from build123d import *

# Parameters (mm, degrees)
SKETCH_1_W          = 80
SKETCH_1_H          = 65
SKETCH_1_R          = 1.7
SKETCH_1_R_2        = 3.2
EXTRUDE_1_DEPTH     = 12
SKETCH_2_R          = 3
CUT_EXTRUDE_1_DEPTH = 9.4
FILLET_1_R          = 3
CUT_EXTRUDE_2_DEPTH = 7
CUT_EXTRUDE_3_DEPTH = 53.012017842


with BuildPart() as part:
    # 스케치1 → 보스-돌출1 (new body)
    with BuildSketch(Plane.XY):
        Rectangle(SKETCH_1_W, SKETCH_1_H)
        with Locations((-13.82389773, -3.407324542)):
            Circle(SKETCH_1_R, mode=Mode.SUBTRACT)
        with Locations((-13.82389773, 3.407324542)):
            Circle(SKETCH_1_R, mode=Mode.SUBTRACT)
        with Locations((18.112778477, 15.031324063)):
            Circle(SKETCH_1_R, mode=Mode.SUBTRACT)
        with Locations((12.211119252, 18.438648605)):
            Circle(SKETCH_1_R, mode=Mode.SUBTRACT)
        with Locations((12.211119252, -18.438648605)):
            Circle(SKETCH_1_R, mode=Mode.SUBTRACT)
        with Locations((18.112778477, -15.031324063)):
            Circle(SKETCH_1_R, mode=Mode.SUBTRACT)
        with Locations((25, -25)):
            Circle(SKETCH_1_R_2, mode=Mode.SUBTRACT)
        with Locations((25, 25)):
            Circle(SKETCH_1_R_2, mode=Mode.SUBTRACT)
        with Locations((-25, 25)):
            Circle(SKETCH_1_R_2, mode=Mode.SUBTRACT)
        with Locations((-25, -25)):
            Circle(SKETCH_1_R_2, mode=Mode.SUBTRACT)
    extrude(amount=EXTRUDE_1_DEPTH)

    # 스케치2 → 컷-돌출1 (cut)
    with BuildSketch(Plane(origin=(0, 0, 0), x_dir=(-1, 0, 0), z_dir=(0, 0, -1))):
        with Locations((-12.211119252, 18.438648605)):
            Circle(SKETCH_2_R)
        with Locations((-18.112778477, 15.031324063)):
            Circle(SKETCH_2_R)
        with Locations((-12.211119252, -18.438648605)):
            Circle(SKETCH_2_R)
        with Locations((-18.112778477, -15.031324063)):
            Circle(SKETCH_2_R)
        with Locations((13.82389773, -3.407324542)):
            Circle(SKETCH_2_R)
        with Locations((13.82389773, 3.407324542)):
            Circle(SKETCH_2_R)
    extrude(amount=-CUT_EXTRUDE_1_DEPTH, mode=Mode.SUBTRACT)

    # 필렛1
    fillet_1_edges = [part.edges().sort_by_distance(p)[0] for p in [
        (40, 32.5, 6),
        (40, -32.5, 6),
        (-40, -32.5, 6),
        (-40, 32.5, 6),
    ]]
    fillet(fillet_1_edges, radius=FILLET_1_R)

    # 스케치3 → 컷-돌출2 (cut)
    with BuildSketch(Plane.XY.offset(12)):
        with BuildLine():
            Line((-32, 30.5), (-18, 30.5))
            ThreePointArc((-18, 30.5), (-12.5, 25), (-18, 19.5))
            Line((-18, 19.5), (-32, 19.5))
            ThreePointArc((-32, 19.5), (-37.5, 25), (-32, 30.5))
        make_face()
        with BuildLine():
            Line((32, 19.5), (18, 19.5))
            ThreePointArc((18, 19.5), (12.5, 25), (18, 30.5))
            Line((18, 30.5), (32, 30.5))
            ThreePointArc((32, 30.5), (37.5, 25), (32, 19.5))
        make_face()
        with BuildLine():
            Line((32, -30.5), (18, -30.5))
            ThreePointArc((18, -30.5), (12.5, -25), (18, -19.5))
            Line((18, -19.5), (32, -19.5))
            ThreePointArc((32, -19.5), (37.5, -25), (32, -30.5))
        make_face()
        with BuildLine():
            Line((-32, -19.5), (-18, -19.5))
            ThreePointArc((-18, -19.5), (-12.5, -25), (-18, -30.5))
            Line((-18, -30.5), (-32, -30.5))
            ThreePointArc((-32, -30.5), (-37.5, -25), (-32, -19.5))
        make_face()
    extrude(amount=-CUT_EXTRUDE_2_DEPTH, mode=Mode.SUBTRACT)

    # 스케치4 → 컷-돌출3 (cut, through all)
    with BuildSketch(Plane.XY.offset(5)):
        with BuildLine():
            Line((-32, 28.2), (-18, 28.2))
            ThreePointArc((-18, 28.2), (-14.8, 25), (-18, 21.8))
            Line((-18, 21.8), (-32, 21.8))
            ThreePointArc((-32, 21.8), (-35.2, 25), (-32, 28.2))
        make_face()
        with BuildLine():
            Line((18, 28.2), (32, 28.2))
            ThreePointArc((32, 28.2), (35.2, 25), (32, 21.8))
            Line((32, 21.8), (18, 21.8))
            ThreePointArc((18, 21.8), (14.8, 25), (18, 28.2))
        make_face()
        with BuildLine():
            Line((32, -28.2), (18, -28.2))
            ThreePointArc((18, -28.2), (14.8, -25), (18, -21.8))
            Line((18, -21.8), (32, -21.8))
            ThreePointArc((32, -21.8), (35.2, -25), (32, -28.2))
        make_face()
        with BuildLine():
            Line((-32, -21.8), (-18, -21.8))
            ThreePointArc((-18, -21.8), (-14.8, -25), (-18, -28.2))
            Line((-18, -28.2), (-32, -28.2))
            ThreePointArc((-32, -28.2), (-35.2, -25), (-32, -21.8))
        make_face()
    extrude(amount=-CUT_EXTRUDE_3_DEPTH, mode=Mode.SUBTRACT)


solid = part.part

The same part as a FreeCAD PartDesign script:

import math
import FreeCAD as App
import Part
import Sketcher

V = App.Vector
Q = App.Units.Quantity


def edges_at(feature, points):
    """Names of the edges that pass closest to the given points."""
    edges = feature.Shape.Edges
    near = lambda p: min(range(len(edges)), key=lambda i: edges[i].distToShape(Part.Vertex(*p))[0])
    return sorted({f"Edge{near(p) + 1}" for p in points})

doc = App.newDocument("Part")
body = doc.addObject("PartDesign::Body", "Body")

# Sketch on XY plane
sketch1 = body.newObject("Sketcher::SketchObject", "Sketch")
sketch1.AttachmentSupport = (doc.getObject("XY_Plane"), [""])
sketch1.MapMode = "FlatFace"
sketch1.addGeometry([
    Part.LineSegment(V(-40, 32.5, 0), V(-40, -32.5, 0)),  # 0
    Part.LineSegment(V(-40, -32.5, 0), V(40, -32.5, 0)),  # 1
    Part.LineSegment(V(40, -32.5, 0), V(40, 32.5, 0)),  # 2
    Part.LineSegment(V(40, 32.5, 0), V(-40, 32.5, 0)),  # 3
    Part.Circle(V(-25, -25, 0), V(0, 0, 1), 3.2),  # 4
    Part.Circle(V(-13.8, -3.4, 0), V(0, 0, 1), 1.7),  # 5
    Part.Circle(V(12.2, -18.4, 0), V(0, 0, 1), 1.7),  # 6
    Part.Circle(V(25, -25, 0), V(0, 0, 1), 3.2),  # 7
    Part.Circle(V(18.1, -15, 0), V(0, 0, 1), 1.7),  # 8
    Part.Circle(V(-13.8, 3.4, 0), V(0, 0, 1), 1.7),  # 9
    Part.Circle(V(-25, 25, 0), V(0, 0, 1), 3.2),  # 10
    Part.Circle(V(12.2, 18.4, 0), V(0, 0, 1), 1.7),  # 11
    Part.Circle(V(18.1, 15, 0), V(0, 0, 1), 1.7),  # 12
    Part.Circle(V(25, 25, 0), V(0, 0, 1), 3.2),  # 13
], False)
sketch1.addConstraint([
    Sketcher.Constraint("Coincident", 0, 2, 1, 1),
    Sketcher.Constraint("Coincident", 1, 2, 2, 1),
    Sketcher.Constraint("Coincident", 2, 2, 3, 1),
    Sketcher.Constraint("Coincident", 3, 2, 0, 1),
    Sketcher.Constraint("Vertical", 0),
    Sketcher.Constraint("Horizontal", 1),
    Sketcher.Constraint("Vertical", 2),
    Sketcher.Constraint("Horizontal", 3),
    Sketcher.Constraint("Equal", 5, 6),
    Sketcher.Constraint("Equal", 4, 7),
    Sketcher.Constraint("Equal", 6, 8),
    Sketcher.Constraint("Equal", 8, 9),
    Sketcher.Constraint("Equal", 7, 10),
    Sketcher.Constraint("Equal", 9, 11),
    Sketcher.Constraint("Equal", 11, 12),
    Sketcher.Constraint("Equal", 10, 13),
    Sketcher.Constraint("Symmetric", 7, 3, 10, 3, -1, 1),
    Sketcher.Constraint("Symmetric", 4, 3, 13, 3, -1, 1),
    Sketcher.Constraint("Symmetric", 0, 2, 2, 2, -1, 1),
    Sketcher.Constraint("Symmetric", 4, 3, 7, 3, -2),
    Sketcher.Constraint("Symmetric", 5, 3, 9, 3, -1),
    Sketcher.Constraint("Symmetric", 6, 3, 11, 3, -1),
    Sketcher.Constraint("Symmetric", 8, 3, 12, 3, -1),
    Sketcher.Constraint("Diameter", 4, Q("6.4 mm")),
    Sketcher.Constraint("Diameter", 5, Q("3.4 mm")),
    Sketcher.Constraint("DistanceX", 1, 1, 1, 2, Q("80 mm")),
    Sketcher.Constraint("DistanceY", 0, 2, 0, 1, Q("65 mm")),
    Sketcher.Constraint("DistanceX", 4, 3, -1, 1, Q("25 mm")),
    Sketcher.Constraint("DistanceY", 4, 3, -1, 1, Q("25 mm")),
    Sketcher.Constraint("DistanceY", 8, 3, 5, 3, Q("11.624 mm")),
    Sketcher.Constraint("DistanceX", -1, 1, 6, 3, Q("12.211119 mm")),
    Sketcher.Constraint("DistanceY", 6, 3, -1, 1, Q("18.438649 mm")),
    Sketcher.Constraint("DistanceX", -1, 1, 8, 3, Q("18.112778 mm")),
    Sketcher.Constraint("DistanceY", 5, 3, 9, 3, Q("6.814649 mm")),
    Sketcher.Constraint("DistanceX", 5, 3, -1, 1, Q("13.823898 mm")),
])
pad1 = body.newObject("PartDesign::Pad", "Pad")
pad1.Profile = sketch1
pad1.Length = 12

# Sketch on XY plane
sketch2 = body.newObject("Sketcher::SketchObject", "Sketch001")
sketch2.AttachmentSupport = (doc.getObject("XY_Plane"), [""])
sketch2.MapMode = "FlatFace"
sketch2.addGeometry([
    Part.Circle(V(12.2, 18.4, 0), V(0, 0, 1), 3),  # 0
    Part.Circle(V(18.1, 15, 0), V(0, 0, 1), 3),  # 1
    Part.Circle(V(12.2, -18.4, 0), V(0, 0, 1), 3),  # 2
    Part.Circle(V(18.1, -15, 0), V(0, 0, 1), 3),  # 3
    Part.Circle(V(-13.8, -3.4, 0), V(0, 0, 1), 3),  # 4
    Part.Circle(V(-13.8, 3.4, 0), V(0, 0, 1), 3),  # 5
], False)
sketch2.addConstraint([
    Sketcher.Constraint("Equal", 0, 1),
    Sketcher.Constraint("Equal", 1, 2),
    Sketcher.Constraint("Equal", 2, 3),
    Sketcher.Constraint("Equal", 3, 4),
    Sketcher.Constraint("Equal", 4, 5),
    Sketcher.Constraint("Symmetric", 0, 3, 2, 3, -1),
    Sketcher.Constraint("Symmetric", 1, 3, 3, 3, -1),
    Sketcher.Constraint("Symmetric", 4, 3, 5, 3, -1),
    Sketcher.Constraint("Diameter", 0, Q("6 mm")),
    Sketcher.Constraint("DistanceY", 3, 3, 4, 3, Q("11.624 mm")),
    Sketcher.Constraint("DistanceX", -1, 1, 0, 3, Q("12.211119 mm")),
    Sketcher.Constraint("DistanceY", -1, 1, 0, 3, Q("18.438649 mm")),
    Sketcher.Constraint("DistanceX", -1, 1, 1, 3, Q("18.112778 mm")),
    Sketcher.Constraint("DistanceY", 3, 3, 1, 3, Q("30.062648 mm")),
    Sketcher.Constraint("DistanceX", 4, 3, -1, 1, Q("13.823898 mm")),
])
pocket1 = body.newObject("PartDesign::Pocket", "Pocket")
pocket1.Profile = sketch2
pocket1.Length = 9.4
pocket1.Reversed = True
doc.recompute()

fillet = body.newObject("PartDesign::Fillet", "Fillet")
fillet.Base = (pocket1, edges_at(pocket1, [
    (40, 32.5, 6),
    (40, -32.5, 6),
    (-40, -32.5, 6),
    (-40, 32.5, 6),
]))
fillet.Radius = 3

# Sketch on XY plane
sketch3 = body.newObject("Sketcher::SketchObject", "Sketch002")
sketch3.AttachmentSupport = (doc.getObject("XY_Plane"), [""])
sketch3.MapMode = "FlatFace"
sketch3.AttachmentOffset = App.Placement(V(0, 0, 12), App.Rotation())
sketch3.addGeometry([
    Part.LineSegment(V(-18, 30, 0), V(-32, 30, 0)),  # 0
    Part.ArcOfCircle(Part.Circle(V(-32, 25, 0), V(0, 0, 1), 6), math.radians(90), math.radians(270)),  # 1
    Part.LineSegment(V(-32, 20, 0), V(-18, 20, 0)),  # 2
    Part.ArcOfCircle(Part.Circle(V(-18, 25, 0), V(0, 0, 1), 6), math.radians(-90), math.radians(90)),  # 3
    Part.LineSegment(V(18, 20, 0), V(32, 20, 0)),  # 4
    Part.ArcOfCircle(Part.Circle(V(32, 25, 0), V(0, 0, 1), 6), math.radians(-90), math.radians(90)),  # 5
    Part.LineSegment(V(32, 30, 0), V(18, 30, 0)),  # 6
    Part.ArcOfCircle(Part.Circle(V(18, 25, 0), V(0, 0, 1), 6), math.radians(90), math.radians(270)),  # 7
    Part.LineSegment(V(18, -30, 0), V(32, -30, 0)),  # 8
    Part.ArcOfCircle(Part.Circle(V(32, -25, 0), V(0, 0, 1), 6), math.radians(-90), math.radians(90)),  # 9
    Part.LineSegment(V(32, -20, 0), V(18, -20, 0)),  # 10
    Part.ArcOfCircle(Part.Circle(V(18, -25, 0), V(0, 0, 1), 6), math.radians(90), math.radians(270)),  # 11
    Part.LineSegment(V(-18, -20, 0), V(-32, -20, 0)),  # 12
    Part.ArcOfCircle(Part.Circle(V(-32, -25, 0), V(0, 0, 1), 6), math.radians(90), math.radians(270)),  # 13
    Part.LineSegment(V(-32, -30, 0), V(-18, -30, 0)),  # 14
    Part.ArcOfCircle(Part.Circle(V(-18, -25, 0), V(0, 0, 1), 6), math.radians(-90), math.radians(90)),  # 15
], False)
sketch3.addConstraint([
    Sketcher.Constraint("Tangent", 0, 2, 1, 1),
    Sketcher.Constraint("Tangent", 1, 2, 2, 1),
    Sketcher.Constraint("Tangent", 2, 2, 3, 1),
    Sketcher.Constraint("Tangent", 3, 2, 0, 1),
    Sketcher.Constraint("Tangent", 4, 2, 5, 1),
    Sketcher.Constraint("Tangent", 5, 2, 6, 1),
    Sketcher.Constraint("Tangent", 6, 2, 7, 1),
    Sketcher.Constraint("Tangent", 7, 2, 4, 1),
    Sketcher.Constraint("Tangent", 8, 2, 9, 1),
    Sketcher.Constraint("Tangent", 9, 2, 10, 1),
    Sketcher.Constraint("Tangent", 10, 2, 11, 1),
    Sketcher.Constraint("Tangent", 11, 2, 8, 1),
    Sketcher.Constraint("Tangent", 12, 2, 13, 1),
    Sketcher.Constraint("Tangent", 13, 2, 14, 1),
    Sketcher.Constraint("Tangent", 14, 2, 15, 1),
    Sketcher.Constraint("Tangent", 15, 2, 12, 1),
    Sketcher.Constraint("Horizontal", 0),
    Sketcher.Constraint("Horizontal", 2),
    Sketcher.Constraint("Horizontal", 4),
    Sketcher.Constraint("Horizontal", 6),
    Sketcher.Constraint("Horizontal", 8),
    Sketcher.Constraint("Horizontal", 10),
    Sketcher.Constraint("Horizontal", 12),
    Sketcher.Constraint("Horizontal", 14),
    Sketcher.Constraint("Equal", 3, 5),
    Sketcher.Constraint("Equal", 7, 9),
    Sketcher.Constraint("Equal", 11, 13),
    Sketcher.Constraint("Symmetric", 1, 3, 9, 3, -1, 1),
    Sketcher.Constraint("Symmetric", 5, 3, 13, 3, -1, 1),
    Sketcher.Constraint("Symmetric", 1, 3, 5, 3, -2),
    Sketcher.Constraint("Vertical", 7, 3, 11, 3),
    Sketcher.Constraint("Vertical", 3, 3, 15, 3),
    Sketcher.Constraint("Equal", 2, 4),
    Sketcher.Constraint("Radius", 1, Q("5.5 mm")),
    Sketcher.Constraint("DistanceX", 0, 2, 0, 1, Q("14 mm")),
    Sketcher.Constraint("DistanceX", 1, 3, -1, 1, Q("32 mm")),
    Sketcher.Constraint("DistanceY", -1, 1, 1, 3, Q("25 mm")),
])
pocket2 = body.newObject("PartDesign::Pocket", "Pocket001")
pocket2.Profile = sketch3
pocket2.Length = 7

# Sketch on XY plane
sketch4 = body.newObject("Sketcher::SketchObject", "Sketch003")
sketch4.AttachmentSupport = (doc.getObject("XY_Plane"), [""])
sketch4.MapMode = "FlatFace"
sketch4.AttachmentOffset = App.Placement(V(0, 0, 5), App.Rotation())
sketch4.addGeometry([
    Part.LineSegment(V(-18, 28.2, 0), V(-32, 28.2, 0)),  # 0
    Part.ArcOfCircle(Part.Circle(V(-32, 25, 0), V(0, 0, 1), 3.2), math.radians(90), math.radians(270)),  # 1
    Part.LineSegment(V(-32, 21.8, 0), V(-18, 21.8, 0)),  # 2
    Part.ArcOfCircle(Part.Circle(V(-18, 25, 0), V(0, 0, 1), 3.2), math.radians(-90), math.radians(90)),  # 3
    Part.LineSegment(V(32, 28.2, 0), V(18, 28.2, 0)),  # 4
    Part.ArcOfCircle(Part.Circle(V(18, 25, 0), V(0, 0, 1), 3.2), math.radians(90), math.radians(270)),  # 5
    Part.LineSegment(V(18, 21.8, 0), V(32, 21.8, 0)),  # 6
    Part.ArcOfCircle(Part.Circle(V(32, 25, 0), V(0, 0, 1), 3.2), math.radians(-90), math.radians(90)),  # 7
    Part.LineSegment(V(18, -28.2, 0), V(32, -28.2, 0)),  # 8
    Part.ArcOfCircle(Part.Circle(V(32, -25, 0), V(0, 0, 1), 3.2), math.radians(-90), math.radians(90)),  # 9
    Part.LineSegment(V(32, -21.8, 0), V(18, -21.8, 0)),  # 10
    Part.ArcOfCircle(Part.Circle(V(18, -25, 0), V(0, 0, 1), 3.2), math.radians(90), math.radians(270)),  # 11
    Part.LineSegment(V(-18, -21.8, 0), V(-32, -21.8, 0)),  # 12
    Part.ArcOfCircle(Part.Circle(V(-32, -25, 0), V(0, 0, 1), 3.2), math.radians(90), math.radians(270)),  # 13
    Part.LineSegment(V(-32, -28.2, 0), V(-18, -28.2, 0)),  # 14
    Part.ArcOfCircle(Part.Circle(V(-18, -25, 0), V(0, 0, 1), 3.2), math.radians(-90), math.radians(90)),  # 15
], False)
sketch4.addConstraint([
    Sketcher.Constraint("Tangent", 0, 2, 1, 1),
    Sketcher.Constraint("Tangent", 1, 2, 2, 1),
    Sketcher.Constraint("Tangent", 2, 2, 3, 1),
    Sketcher.Constraint("Tangent", 3, 2, 0, 1),
    Sketcher.Constraint("Tangent", 4, 2, 5, 1),
    Sketcher.Constraint("Tangent", 5, 2, 6, 1),
    Sketcher.Constraint("Tangent", 6, 2, 7, 1),
    Sketcher.Constraint("Tangent", 7, 2, 4, 1),
    Sketcher.Constraint("Tangent", 8, 2, 9, 1),
    Sketcher.Constraint("Tangent", 9, 2, 10, 1),
    Sketcher.Constraint("Tangent", 10, 2, 11, 1),
    Sketcher.Constraint("Tangent", 11, 2, 8, 1),
    Sketcher.Constraint("Tangent", 12, 2, 13, 1),
    Sketcher.Constraint("Tangent", 13, 2, 14, 1),
    Sketcher.Constraint("Tangent", 14, 2, 15, 1),
    Sketcher.Constraint("Tangent", 15, 2, 12, 1),
    Sketcher.Constraint("Horizontal", 0),
    Sketcher.Constraint("Horizontal", 2),
    Sketcher.Constraint("Horizontal", 4),
    Sketcher.Constraint("Horizontal", 6),
    Sketcher.Constraint("Horizontal", 8),
    Sketcher.Constraint("Horizontal", 10),
    Sketcher.Constraint("Horizontal", 12),
    Sketcher.Constraint("Horizontal", 14),
    Sketcher.Constraint("Equal", 3, 5),
    Sketcher.Constraint("Equal", 7, 9),
    Sketcher.Constraint("Equal", 11, 13),
    Sketcher.Constraint("Symmetric", 1, 3, 9, 3, -1, 1),
    Sketcher.Constraint("Symmetric", 7, 3, 13, 3, -1, 1),
    Sketcher.Constraint("Symmetric", 3, 3, 5, 3, -2),
    Sketcher.Constraint("Vertical", 7, 3, 9, 3),
    Sketcher.Constraint("Vertical", 5, 3, 11, 3),
    Sketcher.Constraint("Vertical", 3, 3, 15, 3),
    Sketcher.Constraint("Radius", 1, Q("3.2 mm")),
    Sketcher.Constraint("DistanceX", 0, 2, 0, 1, Q("14 mm")),
    Sketcher.Constraint("DistanceX", 1, 3, -1, 1, Q("32 mm")),
    Sketcher.Constraint("DistanceY", -1, 1, 1, 3, Q("25 mm")),
])
pocket3 = body.newObject("PartDesign::Pocket", "Pocket002")
pocket3.Profile = sketch4
pocket3.Type = "ThroughAll"

doc.recompute()
